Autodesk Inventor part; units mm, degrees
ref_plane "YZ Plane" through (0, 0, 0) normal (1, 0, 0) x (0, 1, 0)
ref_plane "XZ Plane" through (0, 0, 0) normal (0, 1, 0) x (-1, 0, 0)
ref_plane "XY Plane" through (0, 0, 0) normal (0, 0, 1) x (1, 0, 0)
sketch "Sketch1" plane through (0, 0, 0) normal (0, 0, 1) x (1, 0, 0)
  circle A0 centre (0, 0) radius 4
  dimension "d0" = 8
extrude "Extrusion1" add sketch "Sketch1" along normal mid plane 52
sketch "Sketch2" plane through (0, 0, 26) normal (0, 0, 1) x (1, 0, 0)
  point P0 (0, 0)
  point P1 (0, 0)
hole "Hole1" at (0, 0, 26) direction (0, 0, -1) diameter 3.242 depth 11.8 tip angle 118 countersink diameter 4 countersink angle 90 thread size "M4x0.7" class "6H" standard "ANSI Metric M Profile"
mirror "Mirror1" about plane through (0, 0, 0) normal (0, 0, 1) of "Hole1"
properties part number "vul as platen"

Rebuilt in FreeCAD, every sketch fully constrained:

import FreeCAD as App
import Part
import Sketcher

doc = App.newDocument("Part")
body = doc.addObject("PartDesign::Body", "Body")

# Sketch on XY plane
sketch1 = doc.addObject("Sketcher::SketchObject", "Sketch")
body.addObject(sketch1)
sketch1.AttachmentSupport = (doc.XY_Plane, [""])
sketch1.MapMode = "FlatFace"
sketch1.addGeometry(Part.Circle(App.Vector(0, 0, 0), App.Vector(0, 0, 1), 4), False)
sketch1.addConstraint([
    Sketcher.Constraint("Coincident", 0, 3, -1, 1),
    Sketcher.Constraint("Diameter", 0, 8.0),
])
pad1 = doc.addObject("PartDesign::Pad", "Pad")
body.addObject(pad1)
pad1.Profile = sketch1
pad1.Length = 52
pad1.Midplane = True

# Sketch on XY plane
sketch2 = doc.addObject("Sketcher::SketchObject", "Sketch001")
body.addObject(sketch2)
sketch2.AttachmentSupport = (doc.XY_Plane, [""])
sketch2.MapMode = "FlatFace"
sketch2.AttachmentOffset = App.Placement(App.Vector(0, 0, 26), App.Rotation())
sketch2.addGeometry(Part.Circle(App.Vector(0, 0, 0), App.Vector(0, 0, 1), 1.6), False)
sketch2.addConstraint([
    Sketcher.Constraint("Coincident", 0, 3, -1, 1),
    Sketcher.Constraint("Diameter", 0, 3.242),
])
doc.recompute()
hole = doc.addObject("PartDesign::Hole", "Hole")
body.addObject(hole)
hole.Profile = sketch2
hole.ThreadType = "None"
hole.Diameter = 3.242
hole.DepthType = "Dimension"
hole.Depth = 11.8
hole.DrillPoint = "Angled"
hole.DrillPointAngle = 118
hole.HoleCutType = "Countersink"
hole.HoleCutDiameter = 4
hole.HoleCutCountersinkAngle = 90
doc.recompute()

mirrored = doc.addObject("PartDesign::Mirrored", "Mirrored")
body.addObject(mirrored)
mirrored.Originals = [hole]
mirrored.MirrorPlane = (doc.XY_Plane, [""])
body.Tip = mirrored

doc.recompute()
